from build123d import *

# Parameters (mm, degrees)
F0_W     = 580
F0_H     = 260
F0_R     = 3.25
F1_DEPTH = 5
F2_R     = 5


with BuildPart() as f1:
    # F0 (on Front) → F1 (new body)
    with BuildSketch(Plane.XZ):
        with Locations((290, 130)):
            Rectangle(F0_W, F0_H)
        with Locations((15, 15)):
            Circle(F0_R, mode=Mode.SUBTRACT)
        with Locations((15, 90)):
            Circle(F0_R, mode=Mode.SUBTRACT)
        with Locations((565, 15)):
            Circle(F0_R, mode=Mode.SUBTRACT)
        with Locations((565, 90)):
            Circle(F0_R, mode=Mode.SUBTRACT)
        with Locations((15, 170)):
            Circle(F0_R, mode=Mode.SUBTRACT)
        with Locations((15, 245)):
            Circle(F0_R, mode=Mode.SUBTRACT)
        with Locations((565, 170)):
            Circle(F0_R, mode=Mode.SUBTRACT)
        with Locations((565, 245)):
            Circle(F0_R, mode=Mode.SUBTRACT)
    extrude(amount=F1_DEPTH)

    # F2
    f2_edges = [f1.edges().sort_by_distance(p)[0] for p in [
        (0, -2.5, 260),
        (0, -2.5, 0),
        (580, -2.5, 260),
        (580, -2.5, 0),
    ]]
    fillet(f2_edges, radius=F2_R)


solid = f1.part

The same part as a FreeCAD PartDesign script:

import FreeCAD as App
import Part
import Sketcher
from FreeCAD import Vector


def edges_at(feature, points):
    """Names of the edges that pass closest to the given points."""
    edges = feature.Shape.Edges
    near = lambda p: min(range(len(edges)), key=lambda i: edges[i].distToShape(Part.Vertex(*p))[0])
    return sorted({f"Edge{near(p) + 1}" for p in points})


def add_polygon(sketch, points):
    """Adds a closed chain of lines whose ends are joined by coincident constraints."""
    first, n = sketch.GeometryCount, len(points)
    for a, b in zip(points, points[1:] + points[:1]):
        sketch.addGeometry(Part.LineSegment(App.Vector(*a, 0), App.Vector(*b, 0)), False)
    for i in range(n):
        sketch.addConstraint(Sketcher.Constraint("Coincident", first + i, 2, first + (i + 1) % n, 1))

doc = App.newDocument("Part")
params = doc.addObject("Spreadsheet::Sheet", "Params")
for row, (alias, value) in enumerate([
    ("sketch1_diameter", "6.5 mm"),
    ("sketch1_width", "580 mm"),
    ("sketch1_height", "260 mm"),
    ("pad1_length", "5 mm"),
    ("fillet_radius", "5 mm"),
], start=1):
    params.set(f"A{row}", alias)
    params.set(f"B{row}", "=" + value)
    params.setAlias(f"B{row}", alias)

body = doc.addObject("PartDesign::Body", "Body")

sketch1 = body.newObject("Sketcher::SketchObject", "Sketch")
sketch1.AttachmentSupport = (doc.getObject("XZ_Plane"), [""])
sketch1.MapMode = "FlatFace"
add_polygon(sketch1, [(0, 260), (0, 0), (580, 0), (580, 260)])
sketch1.addGeometry(Part.Circle(Vector(15, 15, 0), Vector(0, 0, 1), 3.2), False)
sketch1.addGeometry(Part.Circle(Vector(15, 90, 0), Vector(0, 0, 1), 3.2), False)
sketch1.addGeometry(Part.Circle(Vector(565, 15, 0), Vector(0, 0, 1), 3.2), False)
sketch1.addGeometry(Part.Circle(Vector(565, 90, 0), Vector(0, 0, 1), 3.2), False)
sketch1.addGeometry(Part.Circle(Vector(15, 170, 0), Vector(0, 0, 1), 3.2), False)
sketch1.addGeometry(Part.Circle(Vector(15, 245, 0), Vector(0, 0, 1), 3.2), False)
sketch1.addGeometry(Part.Circle(Vector(565, 170, 0), Vector(0, 0, 1), 3.2), False)
sketch1.addGeometry(Part.Circle(Vector(565, 245, 0), Vector(0, 0, 1), 3.2), False)
sketch1.addConstraint([
    Sketcher.Constraint("Vertical", 0),
    Sketcher.Constraint("Horizontal", 1),
    Sketcher.Constraint("Vertical", 2),
    Sketcher.Constraint("Horizontal", 3),
    Sketcher.Constraint("Coincident", 0, 2, -1, 1),
    Sketcher.Constraint("Equal", 4, 5),
    Sketcher.Constraint("Equal", 5, 6),
    Sketcher.Constraint("Equal", 6, 7),
    Sketcher.Constraint("Equal", 7, 8),
    Sketcher.Constraint("Equal", 8, 9),
    Sketcher.Constraint("Equal", 9, 10),
    Sketcher.Constraint("Equal", 10, 11),
    Sketcher.Constraint("Horizontal", 4, 3, 6, 3),
    Sketcher.Constraint("Horizontal", 5, 3, 7, 3),
    Sketcher.Constraint("Horizontal", 8, 3, 10, 3),
    Sketcher.Constraint("Horizontal", 9, 3, 11, 3),
    Sketcher.Constraint("Vertical", 4, 3, 5, 3),
    Sketcher.Constraint("Vertical", 6, 3, 7, 3),
    Sketcher.Constraint("Vertical", 5, 3, 8, 3),
    Sketcher.Constraint("Vertical", 8, 3, 9, 3),
    Sketcher.Constraint("Vertical", 7, 3, 10, 3),
    Sketcher.Constraint("Vertical", 10, 3, 11, 3),
    Sketcher.Constraint("Diameter", 4, 6.5),
    Sketcher.Constraint("DistanceX", 1, 1, 1, 2, 580.0),
    Sketcher.Constraint("DistanceY", 0, 2, 0, 1, 260.0),
    Sketcher.Constraint("DistanceX", -1, 1, 4, 3, 15.0),
    Sketcher.Constraint("DistanceY", -1, 1, 4, 3, 15.0),
    Sketcher.Constraint("DistanceY", -1, 1, 5, 3, 90.0),
    Sketcher.Constraint("DistanceX", -1, 1, 6, 3, 565.0),
    Sketcher.Constraint("DistanceY", -1, 1, 8, 3, 170.0),
    Sketcher.Constraint("DistanceY", -1, 1, 9, 3, 245.0),
])
sketch1.setExpression("Constraints[26]", "Params.sketch1_diameter")
sketch1.setExpression("Constraints[27]", "Params.sketch1_width")
sketch1.setExpression("Constraints[28]", "Params.sketch1_height")
pad1 = body.newObject("PartDesign::Pad", "Pad")
pad1.Profile = sketch1
pad1.setExpression("Length", "Params.pad1_length")
doc.recompute()

fillet = body.newObject("PartDesign::Fillet", "Fillet")
fillet.Base = (pad1, edges_at(pad1, [
    (0, -2.5, 260),
    (0, -2.5, 0),
    (580, -2.5, 260),
    (580, -2.5, 0),
]))
fillet.setExpression("Radius", "Params.fillet_radius")

doc.recompute()
